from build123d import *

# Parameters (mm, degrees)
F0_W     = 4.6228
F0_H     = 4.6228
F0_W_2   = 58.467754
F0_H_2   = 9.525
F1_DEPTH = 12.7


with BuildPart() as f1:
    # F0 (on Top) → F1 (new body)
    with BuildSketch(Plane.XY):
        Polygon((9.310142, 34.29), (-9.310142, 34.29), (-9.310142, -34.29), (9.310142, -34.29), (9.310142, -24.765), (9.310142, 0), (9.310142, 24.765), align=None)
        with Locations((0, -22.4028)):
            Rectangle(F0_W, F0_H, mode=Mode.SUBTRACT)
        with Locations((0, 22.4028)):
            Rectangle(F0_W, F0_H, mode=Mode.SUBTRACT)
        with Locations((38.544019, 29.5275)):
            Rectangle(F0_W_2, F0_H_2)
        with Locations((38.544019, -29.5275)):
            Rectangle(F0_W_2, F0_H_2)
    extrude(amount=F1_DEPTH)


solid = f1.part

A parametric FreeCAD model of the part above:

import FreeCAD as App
import Part
import Sketcher
from FreeCAD import Vector
Q = App.Units.Quantity

doc = App.newDocument("Part")
body = doc.addObject("PartDesign::Body", "Body")

sketch1 = body.newObject("Sketcher::SketchObject", "Sketch")
sketch1.AttachmentSupport = (doc.getObject("XY_Plane"), [""])
sketch1.MapMode = "FlatFace"
sketch1.addGeometry([
    Part.LineSegment(Vector(-9.3, 34.3, 0), Vector(-9.3, -34.3, 0)),
    Part.LineSegment(Vector(-9.3, -34.3, 0), Vector(67.8, -34.3, 0)),
    Part.LineSegment(Vector(67.8, -34.3, 0), Vector(67.8, -24.8, 0)),
    Part.LineSegment(Vector(67.8, -24.8, 0), Vector(9.3, -24.8, 0)),
    Part.LineSegment(Vector(9.3, -24.8, 0), Vector(9.3, 24.8, 0)),
    Part.LineSegment(Vector(9.3, 24.8, 0), Vector(67.8, 24.8, 0)),
    Part.LineSegment(Vector(67.8, 24.8, 0), Vector(67.8, 34.3, 0)),
    Part.LineSegment(Vector(67.8, 34.3, 0), Vector(-9.3, 34.3, 0)),
    Part.LineSegment(Vector(2.3, -24.7, 0), Vector(-2.3, -24.7, 0)),
    Part.LineSegment(Vector(-2.3, -24.7, 0), Vector(-2.3, -20.1, 0)),
    Part.LineSegment(Vector(-2.3, -20.1, 0), Vector(2.3, -20.1, 0)),
    Part.LineSegment(Vector(2.3, -20.1, 0), Vector(2.3, -24.7, 0)),
    Part.LineSegment(Vector(2.3, 20.1, 0), Vector(-2.3, 20.1, 0)),
    Part.LineSegment(Vector(-2.3, 20.1, 0), Vector(-2.3, 24.7, 0)),
    Part.LineSegment(Vector(-2.3, 24.7, 0), Vector(2.3, 24.7, 0)),
    Part.LineSegment(Vector(2.3, 24.7, 0), Vector(2.3, 20.1, 0)),
], False)
sketch1.addConstraint([
    Sketcher.Constraint("Coincident", 0, 2, 1, 1),
    Sketcher.Constraint("Coincident", 1, 2, 2, 1),
    Sketcher.Constraint("Coincident", 2, 2, 3, 1),
    Sketcher.Constraint("Coincident", 3, 2, 4, 1),
    Sketcher.Constraint("Coincident", 4, 2, 5, 1),
    Sketcher.Constraint("Coincident", 5, 2, 6, 1),
    Sketcher.Constraint("Coincident", 6, 2, 7, 1),
    Sketcher.Constraint("Coincident", 7, 2, 0, 1),
    Sketcher.Constraint("Coincident", 8, 2, 9, 1),
    Sketcher.Constraint("Coincident", 9, 2, 10, 1),
    Sketcher.Constraint("Coincident", 10, 2, 11, 1),
    Sketcher.Constraint("Coincident", 11, 2, 8, 1),
    Sketcher.Constraint("Coincident", 12, 2, 13, 1),
    Sketcher.Constraint("Coincident", 13, 2, 14, 1),
    Sketcher.Constraint("Coincident", 14, 2, 15, 1),
    Sketcher.Constraint("Coincident", 15, 2, 12, 1),
    Sketcher.Constraint("Vertical", 0),
    Sketcher.Constraint("Horizontal", 1),
    Sketcher.Constraint("Vertical", 2),
    Sketcher.Constraint("Horizontal", 3),
    Sketcher.Constraint("Vertical", 4),
    Sketcher.Constraint("Horizontal", 5),
    Sketcher.Constraint("Vertical", 6),
    Sketcher.Constraint("Horizontal", 7),
    Sketcher.Constraint("Horizontal", 8),
    Sketcher.Constraint("Vertical", 9),
    Sketcher.Constraint("Horizontal", 10),
    Sketcher.Constraint("Vertical", 11),
    Sketcher.Constraint("Horizontal", 12),
    Sketcher.Constraint("Vertical", 13),
    Sketcher.Constraint("Horizontal", 14),
    Sketcher.Constraint("Vertical", 15),
    Sketcher.Constraint("Symmetric", 10, 2, 12, 2, -1, 1),
    Sketcher.Constraint("Symmetric", 8, 2, 14, 2, -1, 1),
    Sketcher.Constraint("Symmetric", 2, 2, 5, 2, -1),
    Sketcher.Constraint("Vertical", 9, 2, 12, 2),
    Sketcher.Constraint("Equal", 2, 6),
    Sketcher.Constraint("Equal", 14, 9),
    Sketcher.Constraint("DistanceY", 0, 2, 0, 1, Q("2.7 in")),
    Sketcher.Constraint("DistanceY", 4, 1, 4, 2, Q("1.95 in")),
    Sketcher.Constraint("DistanceX", 8, 2, 8, 1, Q("0.182 in")),
    Sketcher.Constraint("DistanceY", 8, 2, -1, 1, Q("0.973 in")),
    Sketcher.Constraint("DistanceX", 1, 1, 1, 2, 77.088038),
    Sketcher.Constraint("DistanceX", 3, 2, 3, 1, 58.467754),
    Sketcher.Constraint("DistanceX", 0, 2, -1, 1, 9.310142),
])
pad1 = body.newObject("PartDesign::Pad", "Pad")
pad1.Profile = sketch1
pad1.Length = Q("0.5 in")

doc.recompute()
